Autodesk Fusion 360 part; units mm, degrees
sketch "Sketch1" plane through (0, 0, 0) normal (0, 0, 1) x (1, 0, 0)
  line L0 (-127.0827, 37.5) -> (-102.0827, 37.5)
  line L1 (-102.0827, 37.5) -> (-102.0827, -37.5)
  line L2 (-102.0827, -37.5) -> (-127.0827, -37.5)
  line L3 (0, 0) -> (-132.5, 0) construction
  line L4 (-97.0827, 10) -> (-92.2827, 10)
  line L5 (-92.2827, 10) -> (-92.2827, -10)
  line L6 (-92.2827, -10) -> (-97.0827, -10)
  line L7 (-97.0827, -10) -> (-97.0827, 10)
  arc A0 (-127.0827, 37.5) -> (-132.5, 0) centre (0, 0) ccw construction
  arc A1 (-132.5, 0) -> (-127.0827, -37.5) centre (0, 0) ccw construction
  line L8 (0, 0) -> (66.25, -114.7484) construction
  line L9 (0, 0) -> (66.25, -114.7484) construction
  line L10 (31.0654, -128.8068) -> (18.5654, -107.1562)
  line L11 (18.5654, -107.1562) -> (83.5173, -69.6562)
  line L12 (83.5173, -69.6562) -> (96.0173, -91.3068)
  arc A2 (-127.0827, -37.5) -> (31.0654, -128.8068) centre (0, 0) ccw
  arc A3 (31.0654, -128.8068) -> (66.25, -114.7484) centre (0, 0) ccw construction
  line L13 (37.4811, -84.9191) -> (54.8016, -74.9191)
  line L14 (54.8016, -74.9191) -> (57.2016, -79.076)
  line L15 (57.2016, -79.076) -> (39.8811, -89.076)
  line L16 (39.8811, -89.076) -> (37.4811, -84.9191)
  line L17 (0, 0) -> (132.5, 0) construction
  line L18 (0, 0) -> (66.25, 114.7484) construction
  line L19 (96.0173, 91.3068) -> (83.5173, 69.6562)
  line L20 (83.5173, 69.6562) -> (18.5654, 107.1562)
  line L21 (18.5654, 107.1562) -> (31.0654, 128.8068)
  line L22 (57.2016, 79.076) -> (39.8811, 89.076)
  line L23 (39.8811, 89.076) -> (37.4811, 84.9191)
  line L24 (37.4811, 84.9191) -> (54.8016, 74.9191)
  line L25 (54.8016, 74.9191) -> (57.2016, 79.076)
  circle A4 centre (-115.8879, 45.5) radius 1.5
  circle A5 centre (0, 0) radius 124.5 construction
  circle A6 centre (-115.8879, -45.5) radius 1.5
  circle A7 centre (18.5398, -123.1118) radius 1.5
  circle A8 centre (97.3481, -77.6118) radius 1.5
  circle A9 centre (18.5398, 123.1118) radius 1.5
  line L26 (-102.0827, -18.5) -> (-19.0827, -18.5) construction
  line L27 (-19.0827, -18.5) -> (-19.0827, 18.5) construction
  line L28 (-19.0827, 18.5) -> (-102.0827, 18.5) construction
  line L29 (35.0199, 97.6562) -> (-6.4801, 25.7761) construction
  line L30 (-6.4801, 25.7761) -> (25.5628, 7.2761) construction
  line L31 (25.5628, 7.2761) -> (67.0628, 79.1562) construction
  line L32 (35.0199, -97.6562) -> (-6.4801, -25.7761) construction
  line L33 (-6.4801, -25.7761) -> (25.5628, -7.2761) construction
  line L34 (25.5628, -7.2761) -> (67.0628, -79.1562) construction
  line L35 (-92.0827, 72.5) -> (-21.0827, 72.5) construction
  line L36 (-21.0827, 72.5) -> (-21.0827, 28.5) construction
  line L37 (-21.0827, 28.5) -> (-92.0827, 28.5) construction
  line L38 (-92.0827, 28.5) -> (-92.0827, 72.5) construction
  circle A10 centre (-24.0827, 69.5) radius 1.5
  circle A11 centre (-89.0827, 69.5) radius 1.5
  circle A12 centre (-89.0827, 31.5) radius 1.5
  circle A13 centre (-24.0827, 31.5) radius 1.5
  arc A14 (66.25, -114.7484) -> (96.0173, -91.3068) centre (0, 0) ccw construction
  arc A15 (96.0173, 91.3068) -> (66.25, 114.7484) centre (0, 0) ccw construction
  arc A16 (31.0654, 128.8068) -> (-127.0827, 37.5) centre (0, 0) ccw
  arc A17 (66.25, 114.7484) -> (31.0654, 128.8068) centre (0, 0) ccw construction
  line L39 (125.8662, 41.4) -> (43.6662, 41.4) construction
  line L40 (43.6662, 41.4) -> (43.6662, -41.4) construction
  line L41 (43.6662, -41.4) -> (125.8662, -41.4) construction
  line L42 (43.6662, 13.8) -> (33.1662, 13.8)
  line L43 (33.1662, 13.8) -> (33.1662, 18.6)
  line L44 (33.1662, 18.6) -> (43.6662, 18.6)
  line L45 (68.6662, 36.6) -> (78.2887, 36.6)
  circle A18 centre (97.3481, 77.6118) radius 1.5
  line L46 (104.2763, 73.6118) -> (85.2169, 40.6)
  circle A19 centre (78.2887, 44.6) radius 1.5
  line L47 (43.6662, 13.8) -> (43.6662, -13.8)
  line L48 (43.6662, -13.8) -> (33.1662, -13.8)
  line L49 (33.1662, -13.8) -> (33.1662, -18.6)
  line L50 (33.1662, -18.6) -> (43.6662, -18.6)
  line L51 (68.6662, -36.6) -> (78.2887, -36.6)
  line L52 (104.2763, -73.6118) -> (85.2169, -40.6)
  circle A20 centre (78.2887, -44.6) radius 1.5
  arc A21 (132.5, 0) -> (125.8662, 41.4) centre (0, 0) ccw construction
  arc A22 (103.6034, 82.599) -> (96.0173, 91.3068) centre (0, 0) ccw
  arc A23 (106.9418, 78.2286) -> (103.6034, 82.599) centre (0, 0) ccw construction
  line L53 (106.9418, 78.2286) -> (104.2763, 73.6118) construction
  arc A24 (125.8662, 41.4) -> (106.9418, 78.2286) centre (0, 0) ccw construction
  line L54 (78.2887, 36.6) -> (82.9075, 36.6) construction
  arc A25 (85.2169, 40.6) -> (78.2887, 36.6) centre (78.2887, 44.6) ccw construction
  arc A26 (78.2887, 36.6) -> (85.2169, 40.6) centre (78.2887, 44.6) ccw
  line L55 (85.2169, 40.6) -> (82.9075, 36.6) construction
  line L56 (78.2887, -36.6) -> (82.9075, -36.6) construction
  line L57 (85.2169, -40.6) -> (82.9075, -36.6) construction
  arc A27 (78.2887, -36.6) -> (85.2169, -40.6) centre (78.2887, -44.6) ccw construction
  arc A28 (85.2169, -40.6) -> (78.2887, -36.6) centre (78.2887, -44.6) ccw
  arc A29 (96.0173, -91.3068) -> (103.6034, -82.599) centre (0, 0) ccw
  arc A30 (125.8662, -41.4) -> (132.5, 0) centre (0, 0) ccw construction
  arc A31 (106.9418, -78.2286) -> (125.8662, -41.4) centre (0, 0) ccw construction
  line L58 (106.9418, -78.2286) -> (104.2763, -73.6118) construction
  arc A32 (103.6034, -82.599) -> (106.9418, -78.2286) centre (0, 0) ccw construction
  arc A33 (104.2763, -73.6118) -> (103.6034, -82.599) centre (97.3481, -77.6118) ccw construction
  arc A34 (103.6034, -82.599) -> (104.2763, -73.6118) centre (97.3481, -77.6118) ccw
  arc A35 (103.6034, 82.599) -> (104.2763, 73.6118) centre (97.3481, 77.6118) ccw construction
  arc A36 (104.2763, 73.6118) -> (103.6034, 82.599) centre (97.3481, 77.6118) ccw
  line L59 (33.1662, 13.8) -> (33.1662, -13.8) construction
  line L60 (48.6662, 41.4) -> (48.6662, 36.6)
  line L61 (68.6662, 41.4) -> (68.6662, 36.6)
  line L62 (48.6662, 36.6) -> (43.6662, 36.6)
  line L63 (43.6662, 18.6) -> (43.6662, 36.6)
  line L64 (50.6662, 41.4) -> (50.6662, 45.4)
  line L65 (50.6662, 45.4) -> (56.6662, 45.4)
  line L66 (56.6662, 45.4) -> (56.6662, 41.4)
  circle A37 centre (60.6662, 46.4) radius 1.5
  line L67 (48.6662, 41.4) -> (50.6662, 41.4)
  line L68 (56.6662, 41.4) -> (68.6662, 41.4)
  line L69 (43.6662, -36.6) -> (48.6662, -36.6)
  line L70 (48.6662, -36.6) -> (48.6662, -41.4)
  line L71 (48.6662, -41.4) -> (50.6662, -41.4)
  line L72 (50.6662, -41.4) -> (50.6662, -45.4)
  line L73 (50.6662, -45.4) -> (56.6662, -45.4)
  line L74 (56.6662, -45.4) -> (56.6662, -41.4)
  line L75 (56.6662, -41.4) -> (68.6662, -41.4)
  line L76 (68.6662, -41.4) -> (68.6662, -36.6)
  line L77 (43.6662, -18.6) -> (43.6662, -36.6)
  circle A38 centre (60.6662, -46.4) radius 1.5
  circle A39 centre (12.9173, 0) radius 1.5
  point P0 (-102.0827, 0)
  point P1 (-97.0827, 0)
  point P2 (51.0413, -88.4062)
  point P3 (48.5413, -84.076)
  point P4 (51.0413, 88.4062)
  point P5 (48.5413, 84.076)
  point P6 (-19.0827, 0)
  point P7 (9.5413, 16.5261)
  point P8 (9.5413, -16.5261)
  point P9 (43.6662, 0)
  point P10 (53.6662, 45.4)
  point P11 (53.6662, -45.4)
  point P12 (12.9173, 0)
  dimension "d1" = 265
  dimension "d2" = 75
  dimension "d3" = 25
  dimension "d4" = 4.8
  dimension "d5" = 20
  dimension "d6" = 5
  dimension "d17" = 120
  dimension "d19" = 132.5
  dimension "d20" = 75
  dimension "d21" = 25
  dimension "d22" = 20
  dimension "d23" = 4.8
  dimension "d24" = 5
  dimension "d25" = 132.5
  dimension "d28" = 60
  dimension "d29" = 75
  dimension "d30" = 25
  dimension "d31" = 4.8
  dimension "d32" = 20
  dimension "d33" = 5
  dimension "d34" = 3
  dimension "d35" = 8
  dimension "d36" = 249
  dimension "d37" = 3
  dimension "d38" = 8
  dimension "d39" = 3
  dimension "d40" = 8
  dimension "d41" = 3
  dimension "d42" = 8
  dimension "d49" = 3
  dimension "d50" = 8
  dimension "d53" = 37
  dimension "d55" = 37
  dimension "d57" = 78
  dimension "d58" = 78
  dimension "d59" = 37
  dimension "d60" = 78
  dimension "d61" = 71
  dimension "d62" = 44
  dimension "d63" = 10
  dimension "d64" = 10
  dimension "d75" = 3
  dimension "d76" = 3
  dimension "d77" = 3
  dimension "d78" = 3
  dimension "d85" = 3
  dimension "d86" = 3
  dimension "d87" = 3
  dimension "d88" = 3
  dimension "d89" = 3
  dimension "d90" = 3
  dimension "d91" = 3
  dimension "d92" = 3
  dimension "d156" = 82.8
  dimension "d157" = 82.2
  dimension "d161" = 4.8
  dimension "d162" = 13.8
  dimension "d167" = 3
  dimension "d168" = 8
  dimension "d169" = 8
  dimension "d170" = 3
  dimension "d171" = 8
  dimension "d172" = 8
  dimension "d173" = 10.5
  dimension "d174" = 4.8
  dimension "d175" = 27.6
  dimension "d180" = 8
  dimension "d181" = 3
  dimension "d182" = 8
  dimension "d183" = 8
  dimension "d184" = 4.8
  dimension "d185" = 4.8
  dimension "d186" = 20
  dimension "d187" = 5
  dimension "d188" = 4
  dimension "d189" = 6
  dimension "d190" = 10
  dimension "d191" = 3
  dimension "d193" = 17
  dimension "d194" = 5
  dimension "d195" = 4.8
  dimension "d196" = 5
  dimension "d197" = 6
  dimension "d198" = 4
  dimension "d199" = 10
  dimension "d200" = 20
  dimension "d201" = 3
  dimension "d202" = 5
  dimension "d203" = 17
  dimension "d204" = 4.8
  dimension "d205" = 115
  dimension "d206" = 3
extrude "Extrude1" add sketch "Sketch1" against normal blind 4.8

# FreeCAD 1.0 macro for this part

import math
import FreeCAD as App
import Part
import Sketcher
Q = App.Units.Quantity

doc = App.newDocument("Part")
body = doc.addObject("PartDesign::Body", "Body")

# Sketch on XY plane
sketch1 = doc.addObject("Sketcher::SketchObject", "Sketch")
body.addObject(sketch1)
sketch1.AttachmentSupport = (doc.XY_Plane, [""])
sketch1.MapMode = "FlatFace"
sketch1.addGeometry(Part.ArcOfCircle(Part.Circle(App.Vector(0, 0, 0), App.Vector(0, 0, 1), 132.500048), math.radians(76.440451), math.radians(163.559543)), False)
sketch1.addGeometry(Part.LineSegment(App.Vector(-127.0827, 37.5, 0), App.Vector(-102.0827, 37.5, 0)), False)
sketch1.addGeometry(Part.LineSegment(App.Vector(-102.0827, 37.5, 0), App.Vector(-102.0827, -37.5, 0)), False)
sketch1.addGeometry(Part.LineSegment(App.Vector(-102.0827, -37.5, 0), App.Vector(-127.0827, -37.5, 0)), False)
sketch1.addGeometry(Part.ArcOfCircle(Part.Circle(App.Vector(0, 0, 0), App.Vector(0, 0, 1), 132.5), math.radians(-163.559543), math.radians(-76.440451)), False)
sketch1.addGeometry(Part.LineSegment(App.Vector(31.0654, -128.8068, 0), App.Vector(18.5654, -107.1562, 0)), False)
sketch1.addGeometry(Part.LineSegment(App.Vector(18.5654, -107.1562, 0), App.Vector(83.5173, -69.6562, 0)), False)
sketch1.addGeometry(Part.LineSegment(App.Vector(83.5173, -69.6562, 0), App.Vector(96.0173, -91.3068, 0)), False)
sketch1.addGeometry(Part.ArcOfCircle(Part.Circle(App.Vector(-0.008325, 0.007578, 0), App.Vector(0, 0, 1), 132.511269), math.radians(-43.559423), math.radians(-38.564324)), False)
sketch1.addGeometry(Part.ArcOfCircle(Part.Circle(App.Vector(97.3481, -77.6118, 0), App.Vector(0, 0, 1), 7.999997), math.radians(-38.564512), math.radians(30.000012)), False)
sketch1.addGeometry(Part.LineSegment(App.Vector(104.2763, -73.6118, 0), App.Vector(85.2169, -40.6, 0)), False)
sketch1.addGeometry(Part.ArcOfCircle(Part.Circle(App.Vector(78.2887, -44.6, 0), App.Vector(0, 0, 1), 8), math.radians(30.000012), math.radians(90)), False)
sketch1.addGeometry(Part.LineSegment(App.Vector(78.2887, -36.6, 0), App.Vector(68.6662, -36.6, 0)), False)
sketch1.addGeometry(Part.LineSegment(App.Vector(68.6662, -36.6, 0), App.Vector(68.6662, -41.4, 0)), False)
sketch1.addGeometry(Part.LineSegment(App.Vector(68.6662, -41.4, 0), App.Vector(56.6662, -41.4, 0)), False)
sketch1.addGeometry(Part.LineSegment(App.Vector(56.6662, -41.4, 0), App.Vector(56.6662, -45.4, 0)), False)
sketch1.addGeometry(Part.LineSegment(App.Vector(56.6662, -45.4, 0), App.Vector(50.6662, -45.4, 0)), False)
sketch1.addGeometry(Part.LineSegment(App.Vector(50.6662, -45.4, 0), App.Vector(50.6662, -41.4, 0)), False)
sketch1.addGeometry(Part.LineSegment(App.Vector(50.6662, -41.4, 0), App.Vector(48.6662, -41.4, 0)), False)
sketch1.addGeometry(Part.LineSegment(App.Vector(48.6662, -41.4, 0), App.Vector(48.6662, -36.6, 0)), False)
sketch1.addGeometry(Part.LineSegment(App.Vector(48.6662, -36.6, 0), App.Vector(43.6662, -36.6, 0)), False)
sketch1.addGeometry(Part.LineSegment(App.Vector(43.6662, -36.6, 0), App.Vector(43.6662, -18.6, 0)), False)
sketch1.addGeometry(Part.LineSegment(App.Vector(43.6662, -18.6, 0), App.Vector(33.1662, -18.6, 0)), False)
sketch1.addGeometry(Part.LineSegment(App.Vector(33.1662, -18.6, 0), App.Vector(33.1662, -13.8, 0)), False)
sketch1.addGeometry(Part.LineSegment(App.Vector(33.1662, -13.8, 0), App.Vector(43.6662, -13.8, 0)), False)
sketch1.addGeometry(Part.LineSegment(App.Vector(43.6662, -13.8, 0), App.Vector(43.6662, 13.8, 0)), False)
sketch1.addGeometry(Part.LineSegment(App.Vector(43.6662, 13.8, 0), App.Vector(33.1662, 13.8, 0)), False)
sketch1.addGeometry(Part.LineSegment(App.Vector(33.1662, 13.8, 0), App.Vector(33.1662, 18.6, 0)), False)
sketch1.addGeometry(Part.LineSegment(App.Vector(33.1662, 18.6, 0), App.Vector(43.6662, 18.6, 0)), False)
sketch1.addGeometry(Part.LineSegment(App.Vector(43.6662, 18.6, 0), App.Vector(43.6662, 36.6, 0)), False)
sketch1.addGeometry(Part.LineSegment(App.Vector(43.6662, 36.6, 0), App.Vector(48.6662, 36.6, 0)), False)
sketch1.addGeometry(Part.LineSegment(App.Vector(48.6662, 36.6, 0), App.Vector(48.6662, 41.4, 0)), False)
sketch1.addGeometry(Part.LineSegment(App.Vector(48.6662, 41.4, 0), App.Vector(50.6662, 41.4, 0)), False)
sketch1.addGeometry(Part.LineSegment(App.Vector(50.6662, 41.4, 0), App.Vector(50.6662, 45.4, 0)), False)
sketch1.addGeometry(Part.LineSegment(App.Vector(50.6662, 45.4, 0), App.Vector(56.6662, 45.4, 0)), False)
sketch1.addGeometry(Part.LineSegment(App.Vector(56.6662, 45.4, 0), App.Vector(56.6662, 41.4, 0)), False)
sketch1.addGeometry(Part.LineSegment(App.Vector(56.6662, 41.4, 0), App.Vector(68.6662, 41.4, 0)), False)
sketch1.addGeometry(Part.LineSegment(App.Vector(68.6662, 41.4, 0), App.Vector(68.6662, 36.6, 0)), False)
sketch1.addGeometry(Part.LineSegment(App.Vector(68.6662, 36.6, 0), App.Vector(78.2887, 36.6, 0)), False)
sketch1.addGeometry(Part.ArcOfCircle(Part.Circle(App.Vector(78.2887, 44.6, 0), App.Vector(0, 0, 1), 7.999997), math.radians(-90), math.radians(-30.000012)), False)
sketch1.addGeometry(Part.LineSegment(App.Vector(85.2169, 40.6, 0), App.Vector(104.2763, 73.6118, 0)), False)
sketch1.addGeometry(Part.ArcOfCircle(Part.Circle(App.Vector(97.3481, 77.6118, 0), App.Vector(0, 0, 1), 8.000059), math.radians(-30.000012), math.radians(38.564512)), False)
sketch1.addGeometry(Part.ArcOfCircle(Part.Circle(App.Vector(0.008646, 0.007207, 0), App.Vector(0, 0, 1), 132.488782), math.radians(38.5639), math.radians(43.559847)), False)
sketch1.addGeometry(Part.LineSegment(App.Vector(96.0173, 91.3068, 0), App.Vector(83.5173, 69.6562, 0)), False)
sketch1.addGeometry(Part.LineSegment(App.Vector(83.5173, 69.6562, 0), App.Vector(18.5654, 107.1562, 0)), False)
sketch1.addGeometry(Part.LineSegment(App.Vector(18.5654, 107.1562, 0), App.Vector(31.0654, 128.8068, 0)), False)
sketch1.addGeometry(Part.Circle(App.Vector(-115.8879, -45.5, 0), App.Vector(0, 0, 1), 1.5), False)
sketch1.addGeometry(Part.Circle(App.Vector(18.5398, -123.1118, 0), App.Vector(0, 0, 1), 1.5), False)
sketch1.addGeometry(Part.LineSegment(App.Vector(39.8811, -89.076, 0), App.Vector(37.4811, -84.9191, 0)), False)
sketch1.addGeometry(Part.LineSegment(App.Vector(37.4811, -84.9191, 0), App.Vector(54.8016, -74.9191, 0)), False)
sketch1.addGeometry(Part.LineSegment(App.Vector(54.8016, -74.9191, 0), App.Vector(57.2016, -79.076, 0)), False)
sketch1.addGeometry(Part.LineSegment(App.Vector(57.2016, -79.076, 0), App.Vector(39.8811, -89.076, 0)), False)
sketch1.addGeometry(Part.Circle(App.Vector(97.3481, -77.6118, 0), App.Vector(0, 0, 1), 1.5), False)
sketch1.addGeometry(Part.Circle(App.Vector(60.6662, -46.4, 0), App.Vector(0, 0, 1), 1.5), False)
sketch1.addGeometry(Part.Circle(App.Vector(78.2887, -44.6, 0), App.Vector(0, 0, 1), 1.5), False)
sketch1.addGeometry(Part.LineSegment(App.Vector(-97.0827, -10, 0), App.Vector(-97.0827, 10, 0)), False)
sketch1.addGeometry(Part.LineSegment(App.Vector(-97.0827, 10, 0), App.Vector(-92.2827, 10, 0)), False)
sketch1.addGeometry(Part.LineSegment(App.Vector(-92.2827, 10, 0), App.Vector(-92.2827, -10, 0)), False)
sketch1.addGeometry(Part.LineSegment(App.Vector(-92.2827, -10, 0), App.Vector(-97.0827, -10, 0)), False)
sketch1.addGeometry(Part.Circle(App.Vector(-89.0827, 31.5, 0), App.Vector(0, 0, 1), 1.5), False)
sketch1.addGeometry(Part.Circle(App.Vector(-115.8879, 45.5, 0), App.Vector(0, 0, 1), 1.5), False)
sketch1.addGeometry(Part.Circle(App.Vector(-24.0827, 31.5, 0), App.Vector(0, 0, 1), 1.5), False)
sketch1.addGeometry(Part.Circle(App.Vector(-89.0827, 69.5, 0), App.Vector(0, 0, 1), 1.5), False)
sketch1.addGeometry(Part.Circle(App.Vector(-24.0827, 69.5, 0), App.Vector(0, 0, 1), 1.5), False)
sketch1.addGeometry(Part.Circle(App.Vector(12.9173, 0, 0), App.Vector(0, 0, 1), 1.5), False)
sketch1.addGeometry(Part.Circle(App.Vector(60.6662, 46.4, 0), App.Vector(0, 0, 1), 1.5), False)
sketch1.addGeometry(Part.Circle(App.Vector(78.2887, 44.6, 0), App.Vector(0, 0, 1), 1.5), False)
sketch1.addGeometry(Part.Circle(App.Vector(18.5398, 123.1118, 0), App.Vector(0, 0, 1), 1.5), False)
sketch1.addGeometry(Part.LineSegment(App.Vector(39.8811, 89.076, 0), App.Vector(57.2016, 79.076, 0)), False)
sketch1.addGeometry(Part.LineSegment(App.Vector(57.2016, 79.076, 0), App.Vector(54.8016, 74.9191, 0)), False)
sketch1.addGeometry(Part.LineSegment(App.Vector(54.8016, 74.9191, 0), App.Vector(37.4811, 84.9191, 0)), False)
sketch1.addGeometry(Part.LineSegment(App.Vector(37.4811, 84.9191, 0), App.Vector(39.8811, 89.076, 0)), False)
sketch1.addGeometry(Part.Circle(App.Vector(97.3481, 77.6118, 0), App.Vector(0, 0, 1), 1.5), False)
sketch1.addConstraint(Sketcher.Constraint("Coincident", 0, 2, 1, 1))
sketch1.addConstraint(Sketcher.Constraint("Coincident", 1, 2, 2, 1))
sketch1.addConstraint(Sketcher.Constraint("Coincident", 2, 2, 3, 1))
sketch1.addConstraint(Sketcher.Constraint("Coincident", 3, 2, 4, 1))
sketch1.addConstraint(Sketcher.Constraint("Coincident", 4, 2, 5, 1))
sketch1.addConstraint(Sketcher.Constraint("Coincident", 5, 2, 6, 1))
sketch1.addConstraint(Sketcher.Constraint("Coincident", 6, 2, 7, 1))
sketch1.addConstraint(Sketcher.Constraint("Coincident", 7, 2, 8, 1))
sketch1.addConstraint(Sketcher.Constraint("Coincident", 8, 2, 9, 1))
sketch1.addConstraint(Sketcher.Constraint("Coincident", 9, 2, 10, 1))
sketch1.addConstraint(Sketcher.Constraint("Coincident", 10, 2, 11, 1))
sketch1.addConstraint(Sketcher.Constraint("Coincident", 11, 2, 12, 1))
sketch1.addConstraint(Sketcher.Constraint("Coincident", 12, 2, 13, 1))
sketch1.addConstraint(Sketcher.Constraint("Coincident", 13, 2, 14, 1))
sketch1.addConstraint(Sketcher.Constraint("Coincident", 14, 2, 15, 1))
sketch1.addConstraint(Sketcher.Constraint("Coincident", 15, 2, 16, 1))
sketch1.addConstraint(Sketcher.Constraint("Coincident", 16, 2, 17, 1))
sketch1.addConstraint(Sketcher.Constraint("Coincident", 17, 2, 18, 1))
sketch1.addConstraint(Sketcher.Constraint("Coincident", 18, 2, 19, 1))
sketch1.addConstraint(Sketcher.Constraint("Coincident", 19, 2, 20, 1))
sketch1.addConstraint(Sketcher.Constraint("Coincident", 20, 2, 21, 1))
sketch1.addConstraint(Sketcher.Constraint("Coincident", 21, 2, 22, 1))
sketch1.addConstraint(Sketcher.Constraint("Coincident", 22, 2, 23, 1))
sketch1.addConstraint(Sketcher.Constraint("Coincident", 23, 2, 24, 1))
sketch1.addConstraint(Sketcher.Constraint("Coincident", 24, 2, 25, 1))
sketch1.addConstraint(Sketcher.Constraint("Coincident", 25, 2, 26, 1))
sketch1.addConstraint(Sketcher.Constraint("Coincident", 26, 2, 27, 1))
sketch1.addConstraint(Sketcher.Constraint("Coincident", 27, 2, 28, 1))
sketch1.addConstraint(Sketcher.Constraint("Coincident", 28, 2, 29, 1))
sketch1.addConstraint(Sketcher.Constraint("Coincident", 29, 2, 30, 1))
sketch1.addConstraint(Sketcher.Constraint("Coincident", 30, 2, 31, 1))
sketch1.addConstraint(Sketcher.Constraint("Coincident", 31, 2, 32, 1))
sketch1.addConstraint(Sketcher.Constraint("Coincident", 32, 2, 33, 1))
sketch1.addConstraint(Sketcher.Constraint("Coincident", 33, 2, 34, 1))
sketch1.addConstraint(Sketcher.Constraint("Coincident", 34, 2, 35, 1))
sketch1.addConstraint(Sketcher.Constraint("Coincident", 35, 2, 36, 1))
sketch1.addConstraint(Sketcher.Constraint("Coincident", 36, 2, 37, 1))
sketch1.addConstraint(Sketcher.Constraint("Coincident", 37, 2, 38, 1))
sketch1.addConstraint(Sketcher.Constraint("Coincident", 38, 2, 39, 1))
sketch1.addConstraint(Sketcher.Constraint("Coincident", 39, 2, 40, 1))
sketch1.addConstraint(Sketcher.Constraint("Coincident", 40, 2, 41, 1))
sketch1.addConstraint(Sketcher.Constraint("Coincident", 41, 2, 42, 1))
sketch1.addConstraint(Sketcher.Constraint("Coincident", 42, 2, 43, 1))
sketch1.addConstraint(Sketcher.Constraint("Coincident", 43, 2, 44, 1))
sketch1.addConstraint(Sketcher.Constraint("Coincident", 44, 2, 45, 1))
sketch1.addConstraint(Sketcher.Constraint("Coincident", 45, 2, 0, 1))
sketch1.addConstraint(Sketcher.Constraint("Coincident", 48, 2, 49, 1))
sketch1.addConstraint(Sketcher.Constraint("Coincident", 49, 2, 50, 1))
sketch1.addConstraint(Sketcher.Constraint("Coincident", 50, 2, 51, 1))
sketch1.addConstraint(Sketcher.Constraint("Coincident", 51, 2, 48, 1))
sketch1.addConstraint(Sketcher.Constraint("Coincident", 55, 2, 56, 1))
sketch1.addConstraint(Sketcher.Constraint("Coincident", 56, 2, 57, 1))
sketch1.addConstraint(Sketcher.Constraint("Coincident", 57, 2, 58, 1))
sketch1.addConstraint(Sketcher.Constraint("Coincident", 58, 2, 55, 1))
sketch1.addConstraint(Sketcher.Constraint("Coincident", 68, 2, 69, 1))
sketch1.addConstraint(Sketcher.Constraint("Coincident", 69, 2, 70, 1))
sketch1.addConstraint(Sketcher.Constraint("Coincident", 70, 2, 71, 1))
sketch1.addConstraint(Sketcher.Constraint("Coincident", 71, 2, 68, 1))
sketch1.addConstraint(Sketcher.Constraint("Horizontal", 1))
sketch1.addConstraint(Sketcher.Constraint("Vertical", 2))
sketch1.addConstraint(Sketcher.Constraint("Horizontal", 3))
sketch1.addConstraint(Sketcher.Constraint("Horizontal", 12))
sketch1.addConstraint(Sketcher.Constraint("Vertical", 13))
sketch1.addConstraint(Sketcher.Constraint("Horizontal", 14))
sketch1.addConstraint(Sketcher.Constraint("Vertical", 15))
sketch1.addConstraint(Sketcher.Constraint("Horizontal", 16))
sketch1.addConstraint(Sketcher.Constraint("Vertical", 17))
sketch1.addConstraint(Sketcher.Constraint("Horizontal", 18))
sketch1.addConstraint(Sketcher.Constraint("Vertical", 19))
sketch1.addConstraint(Sketcher.Constraint("Horizontal", 20))
sketch1.addConstraint(Sketcher.Constraint("Vertical", 21))
sketch1.addConstraint(Sketcher.Constraint("Horizontal", 22))
sketch1.addConstraint(Sketcher.Constraint("Vertical", 23))
sketch1.addConstraint(Sketcher.Constraint("Horizontal", 24))
sketch1.addConstraint(Sketcher.Constraint("Vertical", 25))
sketch1.addConstraint(Sketcher.Constraint("Horizontal", 26))
sketch1.addConstraint(Sketcher.Constraint("Vertical", 27))
sketch1.addConstraint(Sketcher.Constraint("Horizontal", 28))
sketch1.addConstraint(Sketcher.Constraint("Vertical", 29))
sketch1.addConstraint(Sketcher.Constraint("Horizontal", 30))
sketch1.addConstraint(Sketcher.Constraint("Vertical", 31))
sketch1.addConstraint(Sketcher.Constraint("Horizontal", 32))
sketch1.addConstraint(Sketcher.Constraint("Vertical", 33))
sketch1.addConstraint(Sketcher.Constraint("Horizontal", 34))
sketch1.addConstraint(Sketcher.Constraint("Vertical", 35))
sketch1.addConstraint(Sketcher.Constraint("Horizontal", 36))
sketch1.addConstraint(Sketcher.Constraint("Vertical", 37))
sketch1.addConstraint(Sketcher.Constraint("Horizontal", 38))
sketch1.addConstraint(Sketcher.Constraint("Vertical", 55))
sketch1.addConstraint(Sketcher.Constraint("Horizontal", 56))
sketch1.addConstraint(Sketcher.Constraint("Vertical", 57))
sketch1.addConstraint(Sketcher.Constraint("Horizontal", 58))
sketch1.addConstraint(Sketcher.Constraint("Coincident", 0, 3, -1, 1))
sketch1.addConstraint(Sketcher.Constraint("Coincident", 4, 3, -1, 1))
sketch1.addConstraint(Sketcher.Constraint("Coincident", 52, 3, 9, 3))
sketch1.addConstraint(Sketcher.Constraint("Coincident", 54, 3, 11, 3))
sketch1.addConstraint(Sketcher.Constraint("Coincident", 66, 3, 39, 3))
sketch1.addConstraint(Sketcher.Constraint("Coincident", 72, 3, 41, 3))
sketch1.addConstraint(Sketcher.Constraint("PointOnObject", 64, 3, -1))
sketch1.addConstraint(Sketcher.Constraint("Diameter", 46, Q("3 mm")))
sketch1.addConstraint(Sketcher.Constraint("Diameter", 47, Q("3 mm")))
sketch1.addConstraint(Sketcher.Constraint("Diameter", 52, Q("3 mm")))
sketch1.addConstraint(Sketcher.Constraint("Diameter", 53, Q("3 mm")))
sketch1.addConstraint(Sketcher.Constraint("Diameter", 54, Q("3 mm")))
sketch1.addConstraint(Sketcher.Constraint("Diameter", 59, Q("3 mm")))
sketch1.addConstraint(Sketcher.Constraint("Diameter", 60, Q("3 mm")))
sketch1.addConstraint(Sketcher.Constraint("Diameter", 61, Q("3 mm")))
sketch1.addConstraint(Sketcher.Constraint("Diameter", 62, Q("3 mm")))
sketch1.addConstraint(Sketcher.Constraint("Diameter", 63, Q("3 mm")))
sketch1.addConstraint(Sketcher.Constraint("Diameter", 64, Q("3 mm")))
sketch1.addConstraint(Sketcher.Constraint("Diameter", 65, Q("3 mm")))
sketch1.addConstraint(Sketcher.Constraint("Diameter", 66, Q("3 mm")))
sketch1.addConstraint(Sketcher.Constraint("Diameter", 67, Q("3 mm")))
sketch1.addConstraint(Sketcher.Constraint("Diameter", 72, Q("3 mm")))
sketch1.addConstraint(Sketcher.Constraint("Radius", 9, Q("8 mm")))
sketch1.addConstraint(Sketcher.Constraint("Radius", 11, Q("8 mm")))
sketch1.addConstraint(Sketcher.Constraint("Radius", 39, Q("8 mm")))
sketch1.addConstraint(Sketcher.Constraint("Radius", 41, Q("8 mm")))
sketch1.addConstraint(Sketcher.Constraint("Radius", 0, Q("132.5 mm")))
sketch1.addConstraint(Sketcher.Constraint("Radius", 4, Q("132.5 mm")))
sketch1.addConstraint(Sketcher.Constraint("DistanceX", 1, 1, 1, 2, Q("25 mm")))
sketch1.addConstraint(Sketcher.Constraint("DistanceX", 3, 2, 3, 1, Q("25 mm")))
sketch1.addConstraint(Sketcher.Constraint("DistanceX", 16, 2, 16, 1, Q("6 mm")))
sketch1.addConstraint(Sketcher.Constraint("DistanceX", 20, 2, 20, 1, Q("5 mm")))
sketch1.addConstraint(Sketcher.Constraint("DistanceX", 30, 1, 30, 2, Q("5 mm")))
sketch1.addConstraint(Sketcher.Constraint("DistanceX", 34, 1, 34, 2, Q("6 mm")))
sketch1.addConstraint(Sketcher.Constraint("DistanceY", 2, 2, 2, 1, Q("75 mm")))
sketch1.addConstraint(Sketcher.Constraint("DistanceY", 15, 2, 15, 1, Q("4 mm")))
sketch1.addConstraint(Sketcher.Constraint("DistanceY", 17, 1, 17, 2, Q("4 mm")))
sketch1.addConstraint(Sketcher.Constraint("DistanceY", 33, 1, 33, 2, Q("4 mm")))
sketch1.addConstraint(Sketcher.Constraint("DistanceY", 35, 2, 35, 1, Q("4 mm")))
sketch1.addConstraint(Sketcher.Constraint("DistanceY", 55, 1, 55, 2, Q("20 mm")))
sketch1.addConstraint(Sketcher.Constraint("Distance", 5, Q("25 mm")))
sketch1.addConstraint(Sketcher.Constraint("Distance", 6, Q("75 mm")))
sketch1.addConstraint(Sketcher.Constraint("Distance", 7, Q("25 mm")))
sketch1.addConstraint(Sketcher.Constraint("Distance", 43, Q("25 mm")))
sketch1.addConstraint(Sketcher.Constraint("Distance", 44, Q("75 mm")))
sketch1.addConstraint(Sketcher.Constraint("Distance", 45, Q("25 mm")))
sketch1.addConstraint(Sketcher.Constraint("Distance", 49, Q("20 mm")))
sketch1.addConstraint(Sketcher.Constraint("Distance", 51, Q("20 mm")))
sketch1.addConstraint(Sketcher.Constraint("Distance", 68, Q("20 mm")))
sketch1.addConstraint(Sketcher.Constraint("Distance", 70, Q("20 mm")))
sketch1.addConstraint(Sketcher.Constraint("DistanceX", 22, 2, 22, 1, Q("10.5 mm")))
sketch1.addConstraint(Sketcher.Constraint("DistanceX", 24, 1, 24, 2, Q("10.5 mm")))
sketch1.addConstraint(Sketcher.Constraint("DistanceX", 26, 2, 26, 1, Q("10.5 mm")))
sketch1.addConstraint(Sketcher.Constraint("DistanceX", 28, 1, 28, 2, Q("10.5 mm")))
sketch1.addConstraint(Sketcher.Constraint("DistanceX", 56, 1, 56, 2, Q("4.8 mm")))
sketch1.addConstraint(Sketcher.Constraint("DistanceY", 13, 2, 13, 1, Q("4.8 mm")))
sketch1.addConstraint(Sketcher.Constraint("DistanceY", 19, 1, 19, 2, Q("4.8 mm")))
sketch1.addConstraint(Sketcher.Constraint("DistanceY", 23, 1, 23, 2, Q("4.8 mm")))
sketch1.addConstraint(Sketcher.Constraint("DistanceY", 25, 1, 25, 2, Q("27.6 mm")))
sketch1.addConstraint(Sketcher.Constraint("DistanceY", 27, 1, 27, 2, Q("4.8 mm")))
sketch1.addConstraint(Sketcher.Constraint("DistanceY", 31, 1, 31, 2, Q("4.8 mm")))
sketch1.addConstraint(Sketcher.Constraint("DistanceY", 37, 2, 37, 1, Q("4.8 mm")))
sketch1.addConstraint(Sketcher.Constraint("DistanceY", -1, 1, 55, 2, Q("10 mm")))
sketch1.addConstraint(Sketcher.Constraint("Distance", 48, Q("4.8 mm")))
sketch1.addConstraint(Sketcher.Constraint("Distance", 50, Q("4.8 mm")))
sketch1.addConstraint(Sketcher.Constraint("Distance", 69, Q("4.8 mm")))
sketch1.addConstraint(Sketcher.Constraint("Distance", 71, Q("4.8 mm")))
sketch1.addConstraint(Sketcher.Constraint("DistanceY", 23, 2, -1, 1, Q("13.8 mm")))
sketch1.addConstraint(Sketcher.Constraint("DistanceX", 14, 2, 14, 1, Q("12 mm")))
sketch1.addConstraint(Sketcher.Constraint("DistanceX", 18, 2, 18, 1, Q("2 mm")))
sketch1.addConstraint(Sketcher.Constraint("DistanceX", 32, 1, 32, 2, Q("2 mm")))
sketch1.addConstraint(Sketcher.Constraint("DistanceX", 36, 1, 36, 2, Q("12 mm")))
sketch1.addConstraint(Sketcher.Constraint("DistanceY", 21, 1, 21, 2, Q("18 mm")))
sketch1.addConstraint(Sketcher.Constraint("DistanceY", 29, 1, 29, 2, Q("18 mm")))
sketch1.addConstraint(Sketcher.Constraint("DistanceY", 46, 3, -1, 1, Q("45.5 mm")))
sketch1.addConstraint(Sketcher.Constraint("DistanceY", 53, 3, -1, 1, Q("46.4 mm")))
sketch1.addConstraint(Sketcher.Constraint("DistanceY", -1, 1, 59, 3, Q("31.5 mm")))
sketch1.addConstraint(Sketcher.Constraint("DistanceY", -1, 1, 60, 3, Q("45.5 mm")))
sketch1.addConstraint(Sketcher.Constraint("DistanceY", -1, 1, 61, 3, Q("31.5 mm")))
sketch1.addConstraint(Sketcher.Constraint("DistanceY", -1, 1, 62, 3, Q("69.5 mm")))
sketch1.addConstraint(Sketcher.Constraint("DistanceY", -1, 1, 63, 3, Q("69.5 mm")))
sketch1.addConstraint(Sketcher.Constraint("DistanceY", -1, 1, 65, 3, Q("46.4 mm")))
sketch1.addConstraint(Sketcher.Constraint("DistanceY", 10, 2, -1, 1, Q("40.6 mm")))
sketch1.addConstraint(Sketcher.Constraint("DistanceY", -1, 1, 39, 2, Q("40.6 mm")))
sketch1.addConstraint(Sketcher.Constraint("Radius", 8, Q("132.5113 mm")))
sketch1.addConstraint(Sketcher.Constraint("Radius", 42, Q("132.4888 mm")))
sketch1.addConstraint(Sketcher.Constraint("DistanceX", 12, 2, 12, 1, Q("9.6225 mm")))
sketch1.addConstraint(Sketcher.Constraint("DistanceX", 38, 1, 38, 2, Q("9.6225 mm")))
sketch1.addConstraint(Sketcher.Constraint("DistanceX", -1, 1, 9, 3, Q("97.348 mm")))
sketch1.addConstraint(Sketcher.Constraint("DistanceX", -1, 1, 41, 3, Q("97.348 mm")))
sketch1.addConstraint(Sketcher.Constraint("DistanceX", 46, 3, -1, 1, Q("115.888 mm")))
sketch1.addConstraint(Sketcher.Constraint("DistanceX", 60, 3, -1, 1, Q("115.888 mm")))
sketch1.addConstraint(Sketcher.Constraint("DistanceY", 8, 2, -1, 1, Q("82.599 mm")))
sketch1.addConstraint(Sketcher.Constraint("DistanceX", -1, 1, 10, 2, Q("85.217 mm")))
sketch1.addConstraint(Sketcher.Constraint("DistanceX", -1, 1, 39, 2, Q("85.217 mm")))
sketch1.addConstraint(Sketcher.Constraint("DistanceY", -1, 1, 41, 2, Q("82.599 mm")))
sketch1.addConstraint(Sketcher.Constraint("DistanceX", -1, 1, 48, 2, Q("37.481 mm")))
sketch1.addConstraint(Sketcher.Constraint("DistanceY", 48, 2, -1, 1, Q("84.919 mm")))
sketch1.addConstraint(Sketcher.Constraint("DistanceY", 49, 2, -1, 1, Q("74.919 mm")))
sketch1.addConstraint(Sketcher.Constraint("DistanceY", 50, 2, -1, 1, Q("79.076 mm")))
sketch1.addConstraint(Sketcher.Constraint("DistanceY", -1, 1, 68, 2, Q("79.076 mm")))
sketch1.addConstraint(Sketcher.Constraint("DistanceY", -1, 1, 69, 2, Q("74.919 mm")))
sketch1.addConstraint(Sketcher.Constraint("DistanceX", -1, 1, 70, 2, Q("37.481 mm")))
sketch1.addConstraint(Sketcher.Constraint("DistanceY", -1, 1, 70, 2, Q("84.919 mm")))
sketch1.addConstraint(Sketcher.Constraint("Distance", 10, Q("38.1188 mm")))
sketch1.addConstraint(Sketcher.Constraint("Distance", 40, Q("38.1188 mm")))
sketch1.addConstraint(Sketcher.Constraint("DistanceX", 8, 3, -1, 1, Q("0.0083 mm")))
sketch1.addConstraint(Sketcher.Constraint("DistanceY", -1, 1, 8, 3, Q("0.0076 mm")))
sketch1.addConstraint(Sketcher.Constraint("DistanceY", -1, 1, 41, 3, Q("77.6118 mm")))
sketch1.addConstraint(Sketcher.Constraint("DistanceX", -1, 1, 42, 3, Q("0.0086 mm")))
sketch1.addConstraint(Sketcher.Constraint("DistanceX", -1, 1, 47, 3, Q("18.5398 mm")))
sketch1.addConstraint(Sketcher.Constraint("DistanceY", 47, 3, -1, 1, Q("123.1118 mm")))
sketch1.addConstraint(Sketcher.Constraint("DistanceX", -1, 1, 53, 3, Q("60.6662 mm")))
sketch1.addConstraint(Sketcher.Constraint("DistanceX", 59, 3, -1, 1, Q("89.0827 mm")))
sketch1.addConstraint(Sketcher.Constraint("DistanceX", 61, 3, -1, 1, Q("24.0827 mm")))
sketch1.addConstraint(Sketcher.Constraint("DistanceX", 62, 3, -1, 1, Q("89.0827 mm")))
sketch1.addConstraint(Sketcher.Constraint("DistanceX", 63, 3, -1, 1, Q("24.0827 mm")))
sketch1.addConstraint(Sketcher.Constraint("DistanceX", -1, 1, 64, 3, Q("12.9173 mm")))
sketch1.addConstraint(Sketcher.Constraint("DistanceX", -1, 1, 65, 3, Q("60.6662 mm")))
sketch1.addConstraint(Sketcher.Constraint("DistanceX", -1, 1, 67, 3, Q("18.5398 mm")))
sketch1.addConstraint(Sketcher.Constraint("DistanceY", -1, 1, 67, 3, Q("123.1118 mm")))
sketch1.addConstraint(Sketcher.Constraint("DistanceX", -1, 1, 4, 2, Q("31.0654 mm")))
sketch1.addConstraint(Sketcher.Constraint("DistanceX", -1, 1, 5, 2, Q("18.5654 mm")))
sketch1.addConstraint(Sketcher.Constraint("DistanceX", -1, 1, 6, 2, Q("83.5173 mm")))
sketch1.addConstraint(Sketcher.Constraint("DistanceX", -1, 1, 11, 2, Q("78.2887 mm")))
sketch1.addConstraint(Sketcher.Constraint("DistanceX", -1, 1, 42, 2, Q("96.0173 mm")))
sketch1.addConstraint(Sketcher.Constraint("DistanceX", -1, 1, 43, 2, Q("83.5173 mm")))
sketch1.addConstraint(Sketcher.Constraint("DistanceX", -1, 1, 44, 2, Q("18.5654 mm")))
sketch1.addConstraint(Sketcher.Constraint("DistanceX", 55, 2, -1, 1, Q("97.0827 mm")))
pad1 = doc.addObject("PartDesign::Pad", "Pad")
body.addObject(pad1)
pad1.Profile = sketch1
pad1.Length = 4.8
pad1.Reversed = True

doc.recompute()
